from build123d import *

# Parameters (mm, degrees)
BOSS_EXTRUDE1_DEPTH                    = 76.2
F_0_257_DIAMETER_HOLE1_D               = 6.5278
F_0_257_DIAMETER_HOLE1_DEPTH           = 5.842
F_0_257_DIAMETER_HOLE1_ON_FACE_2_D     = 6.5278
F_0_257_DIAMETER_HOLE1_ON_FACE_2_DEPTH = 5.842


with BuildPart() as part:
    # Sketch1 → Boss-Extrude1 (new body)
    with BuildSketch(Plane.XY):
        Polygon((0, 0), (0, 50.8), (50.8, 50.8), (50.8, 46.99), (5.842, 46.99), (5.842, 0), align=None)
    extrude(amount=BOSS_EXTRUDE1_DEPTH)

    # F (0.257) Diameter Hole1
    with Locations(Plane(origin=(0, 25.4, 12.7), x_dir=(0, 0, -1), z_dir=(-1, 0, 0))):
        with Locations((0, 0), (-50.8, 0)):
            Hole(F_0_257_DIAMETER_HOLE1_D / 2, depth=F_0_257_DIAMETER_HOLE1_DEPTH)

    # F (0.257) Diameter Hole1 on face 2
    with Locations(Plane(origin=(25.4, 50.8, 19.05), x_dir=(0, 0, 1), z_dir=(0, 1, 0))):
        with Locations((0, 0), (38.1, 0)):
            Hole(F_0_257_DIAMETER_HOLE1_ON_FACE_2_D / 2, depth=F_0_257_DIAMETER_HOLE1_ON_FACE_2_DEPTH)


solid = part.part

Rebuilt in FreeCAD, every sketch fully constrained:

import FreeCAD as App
import Part
import Sketcher
from FreeCAD import Vector
Q = App.Units.Quantity


def add_polygon(sketch, points):
    """Adds a closed chain of lines whose ends are joined by coincident constraints."""
    first, n = sketch.GeometryCount, len(points)
    for a, b in zip(points, points[1:] + points[:1]):
        sketch.addGeometry(Part.LineSegment(App.Vector(*a, 0), App.Vector(*b, 0)), False)
    for i in range(n):
        sketch.addConstraint(Sketcher.Constraint("Coincident", first + i, 2, first + (i + 1) % n, 1))

doc = App.newDocument("Part")
body = doc.addObject("PartDesign::Body", "Body")

# Sketch on XY plane
sketch1 = body.newObject("Sketcher::SketchObject", "Sketch")
sketch1.AttachmentSupport = (doc.getObject("XY_Plane"), [""])
sketch1.MapMode = "FlatFace"
add_polygon(sketch1, [(0, 50.8), (0, 0), (5.842, 0), (5.842, 46.99), (50.8, 46.99), (50.8, 50.8)])  # lines 0-5
sketch1.addConstraint([
    Sketcher.Constraint("Vertical", 0),
    Sketcher.Constraint("Horizontal", 1),
    Sketcher.Constraint("Vertical", 2),
    Sketcher.Constraint("Horizontal", 3),
    Sketcher.Constraint("Vertical", 4),
    Sketcher.Constraint("Horizontal", 5),
    Sketcher.Constraint("Coincident", 0, 2, -1, 1),
    Sketcher.Constraint("Equal", 5, 0),
    Sketcher.Constraint("DistanceX", 5, 2, 5, 1, Q("2 in")),
    Sketcher.Constraint("DistanceX", 1, 1, 1, 2, Q("0.23 in")),
    Sketcher.Constraint("DistanceY", 2, 1, 2, 2, Q("1.85 in")),
])
pad1 = body.newObject("PartDesign::Pad", "Pad")
pad1.Profile = sketch1
pad1.Length = Q("3 in")

# Sketch on YZ plane
sketch2 = body.newObject("Sketcher::SketchObject", "Sketch001")
sketch2.AttachmentSupport = (doc.getObject("YZ_Plane"), [""])
sketch2.MapMode = "FlatFace"
sketch2.addGeometry([
    Part.Circle(Vector(25.4, 12.7, 0), Vector(0, 0, 1), 3.2639),
    Part.Circle(Vector(25.4, 63.5, 0), Vector(0, 0, 1), 3.2639),
], False)
sketch2.addConstraint([
    Sketcher.Constraint("Equal", 0, 1),
    Sketcher.Constraint("Vertical", 0, 3, 1, 3),
    Sketcher.Constraint("Diameter", 0, Q("0.257 in")),
    Sketcher.Constraint("DistanceX", -1, 1, 0, 3, Q("1 in")),
    Sketcher.Constraint("DistanceY", 0, 3, 1, 3, Q("2 in")),
    Sketcher.Constraint("DistanceY", -1, 1, 0, 3, Q("0.5 in")),
])
doc.recompute()
hole = body.newObject("PartDesign::Hole", "Hole")
hole.Profile = sketch2
hole.ThreadType = "None"
hole.Diameter = Q("0.257 in")
hole.DepthType = "Dimension"
hole.Depth = Q("0.23 in")
hole.DrillPoint = "Flat"
hole.Reversed = True

# Sketch on XZ plane
sketch3 = body.newObject("Sketcher::SketchObject", "Sketch002")
sketch3.AttachmentSupport = (doc.getObject("XZ_Plane"), [""])
sketch3.MapMode = "FlatFace"
sketch3.AttachmentOffset = App.Placement(Vector(0, 0, -2 * 25.4), App.Rotation())
sketch3.addGeometry([
    Part.Circle(Vector(25.4, 19.05, 0), Vector(0, 0, 1), 3.2639),
    Part.Circle(Vector(25.4, 57.15, 0), Vector(0, 0, 1), 3.2639),
], False)
sketch3.addConstraint([
    Sketcher.Constraint("Equal", 0, 1),
    Sketcher.Constraint("Vertical", 0, 3, 1, 3),
    Sketcher.Constraint("Diameter", 0, Q("0.257 in")),
    Sketcher.Constraint("DistanceX", -1, 1, 0, 3, Q("1 in")),
    Sketcher.Constraint("DistanceY", 0, 3, 1, 3, Q("1.5 in")),
    Sketcher.Constraint("DistanceY", -1, 1, 0, 3, Q("0.75 in")),
])
doc.recompute()
hole2 = body.newObject("PartDesign::Hole", "Hole001")
hole2.Profile = sketch3
hole2.ThreadType = "None"
hole2.Diameter = Q("0.257 in")
hole2.DepthType = "Dimension"
hole2.Depth = Q("0.23 in")
hole2.DrillPoint = "Flat"
hole2.Reversed = True

doc.recompute()
